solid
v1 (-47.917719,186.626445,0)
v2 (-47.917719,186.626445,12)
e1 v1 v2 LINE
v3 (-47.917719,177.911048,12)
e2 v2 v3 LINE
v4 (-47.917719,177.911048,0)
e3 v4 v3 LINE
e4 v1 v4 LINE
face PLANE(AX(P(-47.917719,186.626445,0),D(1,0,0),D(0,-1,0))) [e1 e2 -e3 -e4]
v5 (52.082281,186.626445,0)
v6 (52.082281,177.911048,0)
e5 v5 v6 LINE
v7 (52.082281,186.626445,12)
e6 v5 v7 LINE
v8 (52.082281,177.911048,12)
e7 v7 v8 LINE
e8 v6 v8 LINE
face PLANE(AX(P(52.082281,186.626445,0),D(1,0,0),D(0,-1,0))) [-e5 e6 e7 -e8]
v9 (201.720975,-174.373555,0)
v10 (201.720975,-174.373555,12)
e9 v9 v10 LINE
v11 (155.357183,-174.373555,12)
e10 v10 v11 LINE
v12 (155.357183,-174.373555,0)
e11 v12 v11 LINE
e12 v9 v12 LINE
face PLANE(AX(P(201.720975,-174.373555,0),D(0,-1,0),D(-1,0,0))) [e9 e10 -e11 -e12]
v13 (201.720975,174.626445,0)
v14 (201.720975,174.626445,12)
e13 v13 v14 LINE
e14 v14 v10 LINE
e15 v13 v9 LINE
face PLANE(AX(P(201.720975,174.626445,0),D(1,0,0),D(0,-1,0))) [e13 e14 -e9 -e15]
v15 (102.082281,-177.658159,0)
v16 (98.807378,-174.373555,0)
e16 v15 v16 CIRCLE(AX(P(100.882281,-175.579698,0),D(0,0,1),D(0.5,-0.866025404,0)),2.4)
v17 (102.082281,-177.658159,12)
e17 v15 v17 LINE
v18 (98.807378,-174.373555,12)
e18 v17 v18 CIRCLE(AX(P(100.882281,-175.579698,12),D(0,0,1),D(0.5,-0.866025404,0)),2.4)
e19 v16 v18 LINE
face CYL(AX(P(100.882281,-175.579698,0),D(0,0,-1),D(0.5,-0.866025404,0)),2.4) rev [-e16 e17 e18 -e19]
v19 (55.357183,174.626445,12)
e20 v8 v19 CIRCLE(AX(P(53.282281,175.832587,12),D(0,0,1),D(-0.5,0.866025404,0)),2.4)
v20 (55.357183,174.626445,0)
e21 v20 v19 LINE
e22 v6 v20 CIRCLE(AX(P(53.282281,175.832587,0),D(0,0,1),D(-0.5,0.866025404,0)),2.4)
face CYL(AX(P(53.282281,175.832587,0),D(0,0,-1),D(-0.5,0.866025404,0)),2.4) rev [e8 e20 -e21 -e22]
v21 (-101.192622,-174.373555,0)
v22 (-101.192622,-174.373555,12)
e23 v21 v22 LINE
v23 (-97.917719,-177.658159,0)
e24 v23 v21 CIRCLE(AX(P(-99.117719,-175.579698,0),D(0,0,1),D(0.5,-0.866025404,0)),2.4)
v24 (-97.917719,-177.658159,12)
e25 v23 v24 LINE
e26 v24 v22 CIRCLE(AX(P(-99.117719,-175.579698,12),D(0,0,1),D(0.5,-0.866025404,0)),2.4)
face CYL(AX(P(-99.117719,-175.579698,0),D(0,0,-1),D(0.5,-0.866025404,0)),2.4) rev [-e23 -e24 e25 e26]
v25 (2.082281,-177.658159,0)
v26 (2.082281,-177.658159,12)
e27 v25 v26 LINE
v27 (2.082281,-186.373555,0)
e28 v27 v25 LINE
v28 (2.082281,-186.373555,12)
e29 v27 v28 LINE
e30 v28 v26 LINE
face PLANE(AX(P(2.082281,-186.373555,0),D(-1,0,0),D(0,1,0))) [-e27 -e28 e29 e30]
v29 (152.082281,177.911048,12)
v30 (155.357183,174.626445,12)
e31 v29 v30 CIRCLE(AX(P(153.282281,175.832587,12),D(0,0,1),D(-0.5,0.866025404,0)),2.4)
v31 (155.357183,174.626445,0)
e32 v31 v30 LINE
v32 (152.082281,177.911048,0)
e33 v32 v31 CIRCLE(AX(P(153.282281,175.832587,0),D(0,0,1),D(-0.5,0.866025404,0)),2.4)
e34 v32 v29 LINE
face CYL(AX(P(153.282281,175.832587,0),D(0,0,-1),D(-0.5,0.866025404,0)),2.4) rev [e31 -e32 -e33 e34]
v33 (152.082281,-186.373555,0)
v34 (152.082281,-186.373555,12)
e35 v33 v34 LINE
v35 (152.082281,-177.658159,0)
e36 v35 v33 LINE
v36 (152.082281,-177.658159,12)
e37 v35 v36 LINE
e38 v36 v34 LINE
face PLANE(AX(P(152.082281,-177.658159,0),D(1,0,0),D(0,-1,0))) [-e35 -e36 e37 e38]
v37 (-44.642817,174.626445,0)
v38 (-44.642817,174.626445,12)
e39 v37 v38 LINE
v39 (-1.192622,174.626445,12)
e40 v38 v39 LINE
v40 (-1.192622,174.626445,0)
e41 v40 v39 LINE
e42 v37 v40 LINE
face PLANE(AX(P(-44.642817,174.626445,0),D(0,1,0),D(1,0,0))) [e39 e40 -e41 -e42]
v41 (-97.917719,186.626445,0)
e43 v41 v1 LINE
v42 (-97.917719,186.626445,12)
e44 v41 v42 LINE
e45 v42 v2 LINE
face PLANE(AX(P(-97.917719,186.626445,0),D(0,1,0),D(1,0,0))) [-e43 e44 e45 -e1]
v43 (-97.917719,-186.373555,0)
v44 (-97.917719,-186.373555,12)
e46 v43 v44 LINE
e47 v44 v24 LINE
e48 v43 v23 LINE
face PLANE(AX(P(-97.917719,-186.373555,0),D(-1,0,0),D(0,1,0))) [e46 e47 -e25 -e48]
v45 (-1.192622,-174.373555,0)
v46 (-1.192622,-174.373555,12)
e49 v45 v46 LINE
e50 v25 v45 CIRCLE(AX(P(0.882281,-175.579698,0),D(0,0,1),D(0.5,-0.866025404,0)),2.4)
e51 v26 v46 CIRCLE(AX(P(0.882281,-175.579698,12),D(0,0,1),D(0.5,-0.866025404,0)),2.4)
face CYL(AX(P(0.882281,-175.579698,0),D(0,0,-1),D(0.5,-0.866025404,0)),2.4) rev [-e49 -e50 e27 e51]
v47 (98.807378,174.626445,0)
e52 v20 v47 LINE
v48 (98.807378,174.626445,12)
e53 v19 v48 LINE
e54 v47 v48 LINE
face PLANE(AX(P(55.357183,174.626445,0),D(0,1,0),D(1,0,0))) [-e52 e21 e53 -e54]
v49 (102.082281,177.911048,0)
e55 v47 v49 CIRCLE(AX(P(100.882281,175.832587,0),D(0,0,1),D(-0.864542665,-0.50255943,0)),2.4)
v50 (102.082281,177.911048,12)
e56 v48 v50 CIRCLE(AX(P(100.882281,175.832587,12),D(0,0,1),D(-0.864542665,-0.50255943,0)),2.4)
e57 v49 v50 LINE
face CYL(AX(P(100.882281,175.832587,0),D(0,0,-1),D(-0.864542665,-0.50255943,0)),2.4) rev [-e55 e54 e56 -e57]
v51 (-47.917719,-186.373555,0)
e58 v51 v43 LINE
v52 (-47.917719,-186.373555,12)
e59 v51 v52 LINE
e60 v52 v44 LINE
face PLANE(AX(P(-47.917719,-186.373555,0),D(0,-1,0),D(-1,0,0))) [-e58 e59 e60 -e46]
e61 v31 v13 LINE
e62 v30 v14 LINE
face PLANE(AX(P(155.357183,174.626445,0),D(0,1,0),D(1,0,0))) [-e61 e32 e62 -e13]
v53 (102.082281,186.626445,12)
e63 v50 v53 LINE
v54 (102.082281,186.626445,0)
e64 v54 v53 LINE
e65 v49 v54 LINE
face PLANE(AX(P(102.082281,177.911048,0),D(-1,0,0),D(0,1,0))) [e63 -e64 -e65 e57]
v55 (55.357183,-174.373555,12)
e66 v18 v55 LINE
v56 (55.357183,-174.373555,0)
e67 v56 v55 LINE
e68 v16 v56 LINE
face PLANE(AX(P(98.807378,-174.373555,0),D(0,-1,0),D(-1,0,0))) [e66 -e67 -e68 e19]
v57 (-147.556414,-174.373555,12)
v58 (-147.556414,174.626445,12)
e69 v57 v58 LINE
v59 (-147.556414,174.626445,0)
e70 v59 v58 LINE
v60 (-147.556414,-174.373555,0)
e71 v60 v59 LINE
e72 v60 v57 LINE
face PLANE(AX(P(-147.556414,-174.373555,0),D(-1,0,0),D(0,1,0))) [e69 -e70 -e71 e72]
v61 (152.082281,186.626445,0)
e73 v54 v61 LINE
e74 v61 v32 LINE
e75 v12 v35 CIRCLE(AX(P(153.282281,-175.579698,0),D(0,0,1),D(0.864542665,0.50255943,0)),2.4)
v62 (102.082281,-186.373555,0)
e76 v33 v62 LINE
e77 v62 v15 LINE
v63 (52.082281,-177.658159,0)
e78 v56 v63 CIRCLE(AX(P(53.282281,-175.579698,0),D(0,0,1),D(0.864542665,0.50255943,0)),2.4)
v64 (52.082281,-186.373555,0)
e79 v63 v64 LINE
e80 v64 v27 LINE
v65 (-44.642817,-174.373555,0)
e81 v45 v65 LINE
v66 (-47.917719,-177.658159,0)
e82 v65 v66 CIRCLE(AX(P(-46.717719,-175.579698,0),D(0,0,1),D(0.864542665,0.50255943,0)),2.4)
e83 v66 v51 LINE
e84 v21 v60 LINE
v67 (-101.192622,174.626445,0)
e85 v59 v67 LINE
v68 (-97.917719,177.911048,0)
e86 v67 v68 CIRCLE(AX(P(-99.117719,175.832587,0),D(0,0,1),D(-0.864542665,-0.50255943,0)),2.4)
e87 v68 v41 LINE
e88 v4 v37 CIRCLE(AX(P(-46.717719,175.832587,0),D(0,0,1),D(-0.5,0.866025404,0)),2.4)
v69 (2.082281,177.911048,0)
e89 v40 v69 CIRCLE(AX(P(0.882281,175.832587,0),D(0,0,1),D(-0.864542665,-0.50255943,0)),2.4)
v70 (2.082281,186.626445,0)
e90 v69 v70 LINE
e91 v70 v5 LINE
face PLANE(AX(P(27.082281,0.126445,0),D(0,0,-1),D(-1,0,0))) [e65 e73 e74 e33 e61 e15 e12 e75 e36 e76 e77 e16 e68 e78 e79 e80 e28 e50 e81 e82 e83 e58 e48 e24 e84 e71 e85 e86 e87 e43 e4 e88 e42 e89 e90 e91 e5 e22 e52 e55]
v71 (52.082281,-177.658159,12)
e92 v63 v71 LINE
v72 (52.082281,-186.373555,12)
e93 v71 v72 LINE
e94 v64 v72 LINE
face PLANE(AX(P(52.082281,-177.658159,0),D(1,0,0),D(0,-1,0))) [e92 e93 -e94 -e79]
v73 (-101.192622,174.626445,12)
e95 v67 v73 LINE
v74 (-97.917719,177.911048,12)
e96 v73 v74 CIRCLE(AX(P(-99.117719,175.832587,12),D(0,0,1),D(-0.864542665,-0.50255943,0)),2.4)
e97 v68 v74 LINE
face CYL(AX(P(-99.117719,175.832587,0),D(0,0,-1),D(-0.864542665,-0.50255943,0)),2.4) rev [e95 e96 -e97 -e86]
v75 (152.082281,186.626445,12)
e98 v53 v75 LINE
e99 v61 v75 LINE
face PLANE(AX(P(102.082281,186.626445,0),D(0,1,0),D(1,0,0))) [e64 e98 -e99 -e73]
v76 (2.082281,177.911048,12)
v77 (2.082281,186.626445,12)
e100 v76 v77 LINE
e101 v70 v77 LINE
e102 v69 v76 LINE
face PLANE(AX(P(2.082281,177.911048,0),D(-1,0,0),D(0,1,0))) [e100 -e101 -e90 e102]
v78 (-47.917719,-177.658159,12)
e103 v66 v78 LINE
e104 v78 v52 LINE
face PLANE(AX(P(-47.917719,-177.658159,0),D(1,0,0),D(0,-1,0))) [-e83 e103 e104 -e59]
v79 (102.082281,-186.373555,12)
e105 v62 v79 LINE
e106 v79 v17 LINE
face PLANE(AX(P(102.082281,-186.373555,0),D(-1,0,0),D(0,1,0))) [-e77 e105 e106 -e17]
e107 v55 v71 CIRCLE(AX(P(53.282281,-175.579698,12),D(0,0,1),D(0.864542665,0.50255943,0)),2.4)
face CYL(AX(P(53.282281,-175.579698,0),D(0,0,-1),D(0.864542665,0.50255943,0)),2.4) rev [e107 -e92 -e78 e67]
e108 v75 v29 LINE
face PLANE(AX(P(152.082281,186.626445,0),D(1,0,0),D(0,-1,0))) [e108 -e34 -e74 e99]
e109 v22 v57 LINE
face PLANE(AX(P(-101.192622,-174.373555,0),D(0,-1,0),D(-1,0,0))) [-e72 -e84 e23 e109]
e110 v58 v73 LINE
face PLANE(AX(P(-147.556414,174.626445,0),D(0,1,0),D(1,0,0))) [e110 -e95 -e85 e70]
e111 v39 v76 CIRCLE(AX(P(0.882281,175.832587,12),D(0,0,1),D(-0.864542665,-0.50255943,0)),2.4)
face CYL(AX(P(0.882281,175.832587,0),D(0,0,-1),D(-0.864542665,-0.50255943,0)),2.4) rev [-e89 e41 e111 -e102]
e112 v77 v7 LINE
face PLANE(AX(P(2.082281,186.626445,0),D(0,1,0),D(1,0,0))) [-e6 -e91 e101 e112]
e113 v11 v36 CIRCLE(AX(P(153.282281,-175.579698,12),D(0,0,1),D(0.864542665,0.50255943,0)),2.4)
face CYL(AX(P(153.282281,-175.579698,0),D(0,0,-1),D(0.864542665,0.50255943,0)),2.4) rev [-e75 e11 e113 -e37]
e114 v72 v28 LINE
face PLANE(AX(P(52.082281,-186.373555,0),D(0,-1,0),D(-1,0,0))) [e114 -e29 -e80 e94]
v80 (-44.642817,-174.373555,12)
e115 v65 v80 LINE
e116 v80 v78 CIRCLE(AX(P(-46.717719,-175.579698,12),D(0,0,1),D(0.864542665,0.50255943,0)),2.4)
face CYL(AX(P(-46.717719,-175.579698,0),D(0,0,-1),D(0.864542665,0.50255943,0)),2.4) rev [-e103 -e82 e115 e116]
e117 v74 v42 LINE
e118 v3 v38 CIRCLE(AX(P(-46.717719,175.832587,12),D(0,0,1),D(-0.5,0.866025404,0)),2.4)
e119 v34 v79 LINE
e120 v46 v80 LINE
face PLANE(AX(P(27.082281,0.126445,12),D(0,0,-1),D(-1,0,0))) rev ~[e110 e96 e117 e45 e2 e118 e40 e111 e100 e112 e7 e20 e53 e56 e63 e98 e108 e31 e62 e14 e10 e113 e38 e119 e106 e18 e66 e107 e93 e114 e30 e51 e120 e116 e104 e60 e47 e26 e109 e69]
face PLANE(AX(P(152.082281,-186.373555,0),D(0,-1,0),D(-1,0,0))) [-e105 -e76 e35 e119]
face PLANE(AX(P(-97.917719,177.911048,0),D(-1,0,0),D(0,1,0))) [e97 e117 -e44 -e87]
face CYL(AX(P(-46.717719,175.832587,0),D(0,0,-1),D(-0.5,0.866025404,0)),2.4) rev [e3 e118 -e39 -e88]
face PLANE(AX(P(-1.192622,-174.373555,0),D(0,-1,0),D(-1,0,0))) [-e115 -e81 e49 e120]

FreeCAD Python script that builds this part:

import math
import FreeCAD as App
import Part
import Sketcher
from FreeCAD import Vector

doc = App.newDocument("Part")
body = doc.addObject("PartDesign::Body", "Body")

# Sketch on XY plane
sketch1 = body.newObject("Sketcher::SketchObject", "Sketch")
sketch1.AttachmentSupport = (doc.getObject("XY_Plane"), [""])
sketch1.MapMode = "FlatFace"
sketch1.addGeometry([
    Part.LineSegment(Vector(-101.192622, 174.626445, 0), Vector(-147.556414, 174.626445, 0)),  # 0
    Part.LineSegment(Vector(-147.556414, 174.626445, 0), Vector(-147.556414, -174.373555, 0)),  # 1
    Part.LineSegment(Vector(-147.556414, -174.373555, 0), Vector(-101.192622, -174.373555, 0)),  # 2
    Part.ArcOfCircle(Part.Circle(Vector(-99.117719, -175.579698, 0), Vector(0, 0, 1), 2.4), math.radians(-60), math.radians(149.830525)),  # 3
    Part.LineSegment(Vector(-97.917719, -177.658159, 0), Vector(-97.917719, -186.373555, 0)),  # 4
    Part.LineSegment(Vector(-97.917719, -186.373555, 0), Vector(-47.917719, -186.373555, 0)),  # 5
    Part.LineSegment(Vector(-47.917719, -186.373555, 0), Vector(-47.917719, -177.658159, 0)),  # 6
    Part.ArcOfCircle(Part.Circle(Vector(-46.717719, -175.579698, 0), Vector(0, 0, 1), 2.4), math.radians(30.169475), math.radians(240)),  # 7
    Part.LineSegment(Vector(-44.642817, -174.373555, 0), Vector(-1.192622, -174.373555, 0)),  # 8
    Part.ArcOfCircle(Part.Circle(Vector(0.882281, -175.579698, 0), Vector(0, 0, 1), 2.4), math.radians(-60), math.radians(149.830525)),  # 9
    Part.LineSegment(Vector(2.082281, -177.658159, 0), Vector(2.082281, -186.373555, 0)),  # 10
    Part.LineSegment(Vector(2.082281, -186.373555, 0), Vector(52.082281, -186.373555, 0)),  # 11
    Part.LineSegment(Vector(52.082281, -186.373555, 0), Vector(52.082281, -177.658159, 0)),  # 12
    Part.ArcOfCircle(Part.Circle(Vector(53.282281, -175.579698, 0), Vector(0, 0, 1), 2.4), math.radians(30.169475), math.radians(240)),  # 13
    Part.LineSegment(Vector(55.357183, -174.373555, 0), Vector(98.807378, -174.373555, 0)),  # 14
    Part.ArcOfCircle(Part.Circle(Vector(100.882281, -175.579698, 0), Vector(0, 0, 1), 2.4), math.radians(-60), math.radians(149.830525)),  # 15
    Part.LineSegment(Vector(102.082281, -177.658159, 0), Vector(102.082281, -186.373555, 0)),  # 16
    Part.LineSegment(Vector(102.082281, -186.373555, 0), Vector(152.082281, -186.373555, 0)),  # 17
    Part.LineSegment(Vector(152.082281, -186.373555, 0), Vector(152.082281, -177.658159, 0)),  # 18
    Part.ArcOfCircle(Part.Circle(Vector(153.282281, -175.579698, 0), Vector(0, 0, 1), 2.4), math.radians(30.169475), math.radians(240)),  # 19
    Part.LineSegment(Vector(155.357183, -174.373555, 0), Vector(201.720975, -174.373555, 0)),  # 20
    Part.LineSegment(Vector(201.720975, -174.373555, 0), Vector(201.720975, 174.626445, 0)),  # 21
    Part.LineSegment(Vector(201.720975, 174.626445, 0), Vector(155.357183, 174.626445, 0)),  # 22
    Part.ArcOfCircle(Part.Circle(Vector(153.282281, 175.832587, 0), Vector(0, 0, 1), 2.4), math.radians(120), math.radians(329.830525)),  # 23
    Part.LineSegment(Vector(152.082281, 177.911048, 0), Vector(152.082281, 186.626445, 0)),  # 24
    Part.LineSegment(Vector(152.082281, 186.626445, 0), Vector(102.082281, 186.626445, 0)),  # 25
    Part.LineSegment(Vector(102.082281, 186.626445, 0), Vector(102.082281, 177.911048, 0)),  # 26
    Part.ArcOfCircle(Part.Circle(Vector(100.882281, 175.832587, 0), Vector(0, 0, 1), 2.4), math.radians(-149.830525), math.radians(60)),  # 27
    Part.LineSegment(Vector(98.807378, 174.626445, 0), Vector(55.357183, 174.626445, 0)),  # 28
    Part.ArcOfCircle(Part.Circle(Vector(53.282281, 175.832587, 0), Vector(0, 0, 1), 2.4), math.radians(120), math.radians(329.830525)),  # 29
    Part.LineSegment(Vector(52.082281, 177.911048, 0), Vector(52.082281, 186.626445, 0)),  # 30
    Part.LineSegment(Vector(52.082281, 186.626445, 0), Vector(2.082281, 186.626445, 0)),  # 31
    Part.LineSegment(Vector(2.082281, 186.626445, 0), Vector(2.082281, 177.911048, 0)),  # 32
    Part.ArcOfCircle(Part.Circle(Vector(0.882281, 175.832587, 0), Vector(0, 0, 1), 2.4), math.radians(-149.830525), math.radians(60)),  # 33
    Part.LineSegment(Vector(-1.192622, 174.626445, 0), Vector(-44.642817, 174.626445, 0)),  # 34
    Part.ArcOfCircle(Part.Circle(Vector(-46.717719, 175.832587, 0), Vector(0, 0, 1), 2.4), math.radians(120), math.radians(329.830525)),  # 35
    Part.LineSegment(Vector(-47.917719, 177.911048, 0), Vector(-47.917719, 186.626445, 0)),  # 36
    Part.LineSegment(Vector(-47.917719, 186.626445, 0), Vector(-97.917719, 186.626445, 0)),  # 37
    Part.LineSegment(Vector(-97.917719, 186.626445, 0), Vector(-97.917719, 177.911048, 0)),  # 38
    Part.ArcOfCircle(Part.Circle(Vector(-99.117719, 175.832587, 0), Vector(0, 0, 1), 2.4), math.radians(-149.830525), math.radians(60)),  # 39
], False)
sketch1.addConstraint([
    Sketcher.Constraint("Coincident", 0, 2, 1, 1),
    Sketcher.Constraint("Coincident", 1, 2, 2, 1),
    Sketcher.Constraint("Coincident", 2, 2, 3, 2),
    Sketcher.Constraint("Coincident", 3, 1, 4, 1),
    Sketcher.Constraint("Coincident", 4, 2, 5, 1),
    Sketcher.Constraint("Coincident", 5, 2, 6, 1),
    Sketcher.Constraint("Coincident", 6, 2, 7, 2),
    Sketcher.Constraint("Coincident", 7, 1, 8, 1),
    Sketcher.Constraint("Coincident", 8, 2, 9, 2),
    Sketcher.Constraint("Coincident", 9, 1, 10, 1),
    Sketcher.Constraint("Coincident", 10, 2, 11, 1),
    Sketcher.Constraint("Coincident", 11, 2, 12, 1),
    Sketcher.Constraint("Coincident", 12, 2, 13, 2),
    Sketcher.Constraint("Coincident", 13, 1, 14, 1),
    Sketcher.Constraint("Coincident", 14, 2, 15, 2),
    Sketcher.Constraint("Coincident", 15, 1, 16, 1),
    Sketcher.Constraint("Coincident", 16, 2, 17, 1),
    Sketcher.Constraint("Coincident", 17, 2, 18, 1),
    Sketcher.Constraint("Coincident", 18, 2, 19, 2),
    Sketcher.Constraint("Coincident", 19, 1, 20, 1),
    Sketcher.Constraint("Coincident", 20, 2, 21, 1),
    Sketcher.Constraint("Coincident", 21, 2, 22, 1),
    Sketcher.Constraint("Coincident", 22, 2, 23, 2),
    Sketcher.Constraint("Coincident", 23, 1, 24, 1),
    Sketcher.Constraint("Coincident", 24, 2, 25, 1),
    Sketcher.Constraint("Coincident", 25, 2, 26, 1),
    Sketcher.Constraint("Coincident", 26, 2, 27, 2),
    Sketcher.Constraint("Coincident", 27, 1, 28, 1),
    Sketcher.Constraint("Coincident", 28, 2, 29, 2),
    Sketcher.Constraint("Coincident", 29, 1, 30, 1),
    Sketcher.Constraint("Coincident", 30, 2, 31, 1),
    Sketcher.Constraint("Coincident", 31, 2, 32, 1),
    Sketcher.Constraint("Coincident", 32, 2, 33, 2),
    Sketcher.Constraint("Coincident", 33, 1, 34, 1),
    Sketcher.Constraint("Coincident", 34, 2, 35, 2),
    Sketcher.Constraint("Coincident", 35, 1, 36, 1),
    Sketcher.Constraint("Coincident", 36, 2, 37, 1),
    Sketcher.Constraint("Coincident", 37, 2, 38, 1),
    Sketcher.Constraint("Coincident", 38, 2, 39, 2),
    Sketcher.Constraint("Coincident", 39, 1, 0, 1),
    Sketcher.Constraint("Horizontal", 0),
    Sketcher.Constraint("Vertical", 1),
    Sketcher.Constraint("Horizontal", 2),
    Sketcher.Constraint("Vertical", 4),
    Sketcher.Constraint("Horizontal", 5),
    Sketcher.Constraint("Vertical", 6),
    Sketcher.Constraint("Horizontal", 8),
    Sketcher.Constraint("Vertical", 10),
    Sketcher.Constraint("Horizontal", 11),
    Sketcher.Constraint("Vertical", 12),
    Sketcher.Constraint("Horizontal", 14),
    Sketcher.Constraint("Vertical", 16),
    Sketcher.Constraint("Horizontal", 17),
    Sketcher.Constraint("Vertical", 18),
    Sketcher.Constraint("Horizontal", 20),
    Sketcher.Constraint("Vertical", 21),
    Sketcher.Constraint("Horizontal", 22),
    Sketcher.Constraint("Vertical", 24),
    Sketcher.Constraint("Horizontal", 25),
    Sketcher.Constraint("Vertical", 26),
    Sketcher.Constraint("Horizontal", 28),
    Sketcher.Constraint("Vertical", 30),
    Sketcher.Constraint("Horizontal", 31),
    Sketcher.Constraint("Vertical", 32),
    Sketcher.Constraint("Horizontal", 34),
    Sketcher.Constraint("Vertical", 36),
    Sketcher.Constraint("Horizontal", 37),
    Sketcher.Constraint("Vertical", 38),
    Sketcher.Constraint("Equal", 3, 7),
    Sketcher.Constraint("Equal", 7, 9),
    Sketcher.Constraint("Equal", 9, 13),
    Sketcher.Constraint("Equal", 13, 15),
    Sketcher.Constraint("Equal", 15, 19),
    Sketcher.Constraint("Equal", 19, 23),
    Sketcher.Constraint("Equal", 23, 27),
    Sketcher.Constraint("Equal", 27, 29),
    Sketcher.Constraint("Equal", 29, 33),
    Sketcher.Constraint("Equal", 33, 35),
    Sketcher.Constraint("Equal", 35, 39),
    Sketcher.Constraint("Horizontal", 3, 3, 7, 3),
    Sketcher.Constraint("Horizontal", 7, 3, 9, 3),
    Sketcher.Constraint("Horizontal", 9, 3, 13, 3),
    Sketcher.Constraint("Horizontal", 13, 3, 15, 3),
    Sketcher.Constraint("Horizontal", 15, 3, 19, 3),
    Sketcher.Constraint("Horizontal", 23, 3, 27, 3),
    Sketcher.Constraint("Horizontal", 27, 3, 29, 3),
    Sketcher.Constraint("Horizontal", 29, 3, 33, 3),
    Sketcher.Constraint("Horizontal", 33, 3, 35, 3),
    Sketcher.Constraint("Horizontal", 35, 3, 39, 3),
    Sketcher.Constraint("Horizontal", 3, 1, 6, 2),
    Sketcher.Constraint("Horizontal", 2, 2, 7, 1),
    Sketcher.Constraint("Horizontal", 6, 2, 9, 1),
    Sketcher.Constraint("Horizontal", 5, 2, 10, 2),
    Sketcher.Constraint("Horizontal", 9, 1, 12, 2),
    Sketcher.Constraint("Horizontal", 8, 2, 13, 1),
    Sketcher.Constraint("Horizontal", 12, 2, 15, 1),
    Sketcher.Constraint("Horizontal", 11, 2, 16, 2),
    Sketcher.Constraint("Horizontal", 15, 1, 18, 2),
    Sketcher.Constraint("Horizontal", 14, 2, 19, 1),
    Sketcher.Constraint("Horizontal", 0, 2, 21, 2),
    Sketcher.Constraint("Horizontal", 23, 1, 26, 2),
    Sketcher.Constraint("Horizontal", 22, 2, 27, 1),
    Sketcher.Constraint("Horizontal", 26, 2, 29, 1),
    Sketcher.Constraint("Horizontal", 25, 2, 30, 2),
    Sketcher.Constraint("Horizontal", 29, 1, 32, 2),
    Sketcher.Constraint("Horizontal", 28, 2, 33, 1),
    Sketcher.Constraint("Horizontal", 32, 2, 35, 1),
    Sketcher.Constraint("Horizontal", 31, 2, 36, 2),
    Sketcher.Constraint("Horizontal", 35, 1, 38, 2),
    Sketcher.Constraint("Vertical", 19, 3, 23, 3),
    Sketcher.Constraint("Vertical", 15, 3, 27, 3),
    Sketcher.Constraint("Vertical", 13, 3, 29, 3),
    Sketcher.Constraint("Vertical", 9, 3, 33, 3),
    Sketcher.Constraint("Vertical", 7, 3, 35, 3),
    Sketcher.Constraint("Vertical", 3, 3, 39, 3),
    Sketcher.Constraint("Vertical", 19, 1, 22, 2),
    Sketcher.Constraint("Vertical", 18, 2, 23, 1),
    Sketcher.Constraint("Equal", 5, 11),
    Sketcher.Constraint("Equal", 8, 14),
    Sketcher.Constraint("Equal", 11, 17),
    Sketcher.Constraint("Equal", 2, 20),
    Sketcher.Constraint("Equal", 18, 24),
    Sketcher.Constraint("Radius", 3, 2.4),
    Sketcher.Constraint("DistanceX", 5, 1, 5, 2, 50.0),
    Sketcher.Constraint("DistanceY", 1, 2, 1, 1, 349.0),
    Sketcher.Constraint("DistanceX", 3, 3, 9, 3, 100.0),
    Sketcher.Constraint("DistanceY", 4, 2, 2, 2, 12.0),
    Sketcher.Constraint("DistanceX", 3, 3, 7, 3, 52.4),
    Sketcher.Constraint("DistanceX", 0, 2, 0, 1, 46.363792),
    Sketcher.Constraint("DistanceX", 8, 1, 8, 2, 43.450195),
    Sketcher.Constraint("DistanceX", 3, 3, -1, 1, 99.117719),
    Sketcher.Constraint("DistanceY", 3, 1, -1, 1, 177.658159),
])
pad1 = body.newObject("PartDesign::Pad", "Pad")
pad1.Profile = sketch1
pad1.Length = 12

doc.recompute()
